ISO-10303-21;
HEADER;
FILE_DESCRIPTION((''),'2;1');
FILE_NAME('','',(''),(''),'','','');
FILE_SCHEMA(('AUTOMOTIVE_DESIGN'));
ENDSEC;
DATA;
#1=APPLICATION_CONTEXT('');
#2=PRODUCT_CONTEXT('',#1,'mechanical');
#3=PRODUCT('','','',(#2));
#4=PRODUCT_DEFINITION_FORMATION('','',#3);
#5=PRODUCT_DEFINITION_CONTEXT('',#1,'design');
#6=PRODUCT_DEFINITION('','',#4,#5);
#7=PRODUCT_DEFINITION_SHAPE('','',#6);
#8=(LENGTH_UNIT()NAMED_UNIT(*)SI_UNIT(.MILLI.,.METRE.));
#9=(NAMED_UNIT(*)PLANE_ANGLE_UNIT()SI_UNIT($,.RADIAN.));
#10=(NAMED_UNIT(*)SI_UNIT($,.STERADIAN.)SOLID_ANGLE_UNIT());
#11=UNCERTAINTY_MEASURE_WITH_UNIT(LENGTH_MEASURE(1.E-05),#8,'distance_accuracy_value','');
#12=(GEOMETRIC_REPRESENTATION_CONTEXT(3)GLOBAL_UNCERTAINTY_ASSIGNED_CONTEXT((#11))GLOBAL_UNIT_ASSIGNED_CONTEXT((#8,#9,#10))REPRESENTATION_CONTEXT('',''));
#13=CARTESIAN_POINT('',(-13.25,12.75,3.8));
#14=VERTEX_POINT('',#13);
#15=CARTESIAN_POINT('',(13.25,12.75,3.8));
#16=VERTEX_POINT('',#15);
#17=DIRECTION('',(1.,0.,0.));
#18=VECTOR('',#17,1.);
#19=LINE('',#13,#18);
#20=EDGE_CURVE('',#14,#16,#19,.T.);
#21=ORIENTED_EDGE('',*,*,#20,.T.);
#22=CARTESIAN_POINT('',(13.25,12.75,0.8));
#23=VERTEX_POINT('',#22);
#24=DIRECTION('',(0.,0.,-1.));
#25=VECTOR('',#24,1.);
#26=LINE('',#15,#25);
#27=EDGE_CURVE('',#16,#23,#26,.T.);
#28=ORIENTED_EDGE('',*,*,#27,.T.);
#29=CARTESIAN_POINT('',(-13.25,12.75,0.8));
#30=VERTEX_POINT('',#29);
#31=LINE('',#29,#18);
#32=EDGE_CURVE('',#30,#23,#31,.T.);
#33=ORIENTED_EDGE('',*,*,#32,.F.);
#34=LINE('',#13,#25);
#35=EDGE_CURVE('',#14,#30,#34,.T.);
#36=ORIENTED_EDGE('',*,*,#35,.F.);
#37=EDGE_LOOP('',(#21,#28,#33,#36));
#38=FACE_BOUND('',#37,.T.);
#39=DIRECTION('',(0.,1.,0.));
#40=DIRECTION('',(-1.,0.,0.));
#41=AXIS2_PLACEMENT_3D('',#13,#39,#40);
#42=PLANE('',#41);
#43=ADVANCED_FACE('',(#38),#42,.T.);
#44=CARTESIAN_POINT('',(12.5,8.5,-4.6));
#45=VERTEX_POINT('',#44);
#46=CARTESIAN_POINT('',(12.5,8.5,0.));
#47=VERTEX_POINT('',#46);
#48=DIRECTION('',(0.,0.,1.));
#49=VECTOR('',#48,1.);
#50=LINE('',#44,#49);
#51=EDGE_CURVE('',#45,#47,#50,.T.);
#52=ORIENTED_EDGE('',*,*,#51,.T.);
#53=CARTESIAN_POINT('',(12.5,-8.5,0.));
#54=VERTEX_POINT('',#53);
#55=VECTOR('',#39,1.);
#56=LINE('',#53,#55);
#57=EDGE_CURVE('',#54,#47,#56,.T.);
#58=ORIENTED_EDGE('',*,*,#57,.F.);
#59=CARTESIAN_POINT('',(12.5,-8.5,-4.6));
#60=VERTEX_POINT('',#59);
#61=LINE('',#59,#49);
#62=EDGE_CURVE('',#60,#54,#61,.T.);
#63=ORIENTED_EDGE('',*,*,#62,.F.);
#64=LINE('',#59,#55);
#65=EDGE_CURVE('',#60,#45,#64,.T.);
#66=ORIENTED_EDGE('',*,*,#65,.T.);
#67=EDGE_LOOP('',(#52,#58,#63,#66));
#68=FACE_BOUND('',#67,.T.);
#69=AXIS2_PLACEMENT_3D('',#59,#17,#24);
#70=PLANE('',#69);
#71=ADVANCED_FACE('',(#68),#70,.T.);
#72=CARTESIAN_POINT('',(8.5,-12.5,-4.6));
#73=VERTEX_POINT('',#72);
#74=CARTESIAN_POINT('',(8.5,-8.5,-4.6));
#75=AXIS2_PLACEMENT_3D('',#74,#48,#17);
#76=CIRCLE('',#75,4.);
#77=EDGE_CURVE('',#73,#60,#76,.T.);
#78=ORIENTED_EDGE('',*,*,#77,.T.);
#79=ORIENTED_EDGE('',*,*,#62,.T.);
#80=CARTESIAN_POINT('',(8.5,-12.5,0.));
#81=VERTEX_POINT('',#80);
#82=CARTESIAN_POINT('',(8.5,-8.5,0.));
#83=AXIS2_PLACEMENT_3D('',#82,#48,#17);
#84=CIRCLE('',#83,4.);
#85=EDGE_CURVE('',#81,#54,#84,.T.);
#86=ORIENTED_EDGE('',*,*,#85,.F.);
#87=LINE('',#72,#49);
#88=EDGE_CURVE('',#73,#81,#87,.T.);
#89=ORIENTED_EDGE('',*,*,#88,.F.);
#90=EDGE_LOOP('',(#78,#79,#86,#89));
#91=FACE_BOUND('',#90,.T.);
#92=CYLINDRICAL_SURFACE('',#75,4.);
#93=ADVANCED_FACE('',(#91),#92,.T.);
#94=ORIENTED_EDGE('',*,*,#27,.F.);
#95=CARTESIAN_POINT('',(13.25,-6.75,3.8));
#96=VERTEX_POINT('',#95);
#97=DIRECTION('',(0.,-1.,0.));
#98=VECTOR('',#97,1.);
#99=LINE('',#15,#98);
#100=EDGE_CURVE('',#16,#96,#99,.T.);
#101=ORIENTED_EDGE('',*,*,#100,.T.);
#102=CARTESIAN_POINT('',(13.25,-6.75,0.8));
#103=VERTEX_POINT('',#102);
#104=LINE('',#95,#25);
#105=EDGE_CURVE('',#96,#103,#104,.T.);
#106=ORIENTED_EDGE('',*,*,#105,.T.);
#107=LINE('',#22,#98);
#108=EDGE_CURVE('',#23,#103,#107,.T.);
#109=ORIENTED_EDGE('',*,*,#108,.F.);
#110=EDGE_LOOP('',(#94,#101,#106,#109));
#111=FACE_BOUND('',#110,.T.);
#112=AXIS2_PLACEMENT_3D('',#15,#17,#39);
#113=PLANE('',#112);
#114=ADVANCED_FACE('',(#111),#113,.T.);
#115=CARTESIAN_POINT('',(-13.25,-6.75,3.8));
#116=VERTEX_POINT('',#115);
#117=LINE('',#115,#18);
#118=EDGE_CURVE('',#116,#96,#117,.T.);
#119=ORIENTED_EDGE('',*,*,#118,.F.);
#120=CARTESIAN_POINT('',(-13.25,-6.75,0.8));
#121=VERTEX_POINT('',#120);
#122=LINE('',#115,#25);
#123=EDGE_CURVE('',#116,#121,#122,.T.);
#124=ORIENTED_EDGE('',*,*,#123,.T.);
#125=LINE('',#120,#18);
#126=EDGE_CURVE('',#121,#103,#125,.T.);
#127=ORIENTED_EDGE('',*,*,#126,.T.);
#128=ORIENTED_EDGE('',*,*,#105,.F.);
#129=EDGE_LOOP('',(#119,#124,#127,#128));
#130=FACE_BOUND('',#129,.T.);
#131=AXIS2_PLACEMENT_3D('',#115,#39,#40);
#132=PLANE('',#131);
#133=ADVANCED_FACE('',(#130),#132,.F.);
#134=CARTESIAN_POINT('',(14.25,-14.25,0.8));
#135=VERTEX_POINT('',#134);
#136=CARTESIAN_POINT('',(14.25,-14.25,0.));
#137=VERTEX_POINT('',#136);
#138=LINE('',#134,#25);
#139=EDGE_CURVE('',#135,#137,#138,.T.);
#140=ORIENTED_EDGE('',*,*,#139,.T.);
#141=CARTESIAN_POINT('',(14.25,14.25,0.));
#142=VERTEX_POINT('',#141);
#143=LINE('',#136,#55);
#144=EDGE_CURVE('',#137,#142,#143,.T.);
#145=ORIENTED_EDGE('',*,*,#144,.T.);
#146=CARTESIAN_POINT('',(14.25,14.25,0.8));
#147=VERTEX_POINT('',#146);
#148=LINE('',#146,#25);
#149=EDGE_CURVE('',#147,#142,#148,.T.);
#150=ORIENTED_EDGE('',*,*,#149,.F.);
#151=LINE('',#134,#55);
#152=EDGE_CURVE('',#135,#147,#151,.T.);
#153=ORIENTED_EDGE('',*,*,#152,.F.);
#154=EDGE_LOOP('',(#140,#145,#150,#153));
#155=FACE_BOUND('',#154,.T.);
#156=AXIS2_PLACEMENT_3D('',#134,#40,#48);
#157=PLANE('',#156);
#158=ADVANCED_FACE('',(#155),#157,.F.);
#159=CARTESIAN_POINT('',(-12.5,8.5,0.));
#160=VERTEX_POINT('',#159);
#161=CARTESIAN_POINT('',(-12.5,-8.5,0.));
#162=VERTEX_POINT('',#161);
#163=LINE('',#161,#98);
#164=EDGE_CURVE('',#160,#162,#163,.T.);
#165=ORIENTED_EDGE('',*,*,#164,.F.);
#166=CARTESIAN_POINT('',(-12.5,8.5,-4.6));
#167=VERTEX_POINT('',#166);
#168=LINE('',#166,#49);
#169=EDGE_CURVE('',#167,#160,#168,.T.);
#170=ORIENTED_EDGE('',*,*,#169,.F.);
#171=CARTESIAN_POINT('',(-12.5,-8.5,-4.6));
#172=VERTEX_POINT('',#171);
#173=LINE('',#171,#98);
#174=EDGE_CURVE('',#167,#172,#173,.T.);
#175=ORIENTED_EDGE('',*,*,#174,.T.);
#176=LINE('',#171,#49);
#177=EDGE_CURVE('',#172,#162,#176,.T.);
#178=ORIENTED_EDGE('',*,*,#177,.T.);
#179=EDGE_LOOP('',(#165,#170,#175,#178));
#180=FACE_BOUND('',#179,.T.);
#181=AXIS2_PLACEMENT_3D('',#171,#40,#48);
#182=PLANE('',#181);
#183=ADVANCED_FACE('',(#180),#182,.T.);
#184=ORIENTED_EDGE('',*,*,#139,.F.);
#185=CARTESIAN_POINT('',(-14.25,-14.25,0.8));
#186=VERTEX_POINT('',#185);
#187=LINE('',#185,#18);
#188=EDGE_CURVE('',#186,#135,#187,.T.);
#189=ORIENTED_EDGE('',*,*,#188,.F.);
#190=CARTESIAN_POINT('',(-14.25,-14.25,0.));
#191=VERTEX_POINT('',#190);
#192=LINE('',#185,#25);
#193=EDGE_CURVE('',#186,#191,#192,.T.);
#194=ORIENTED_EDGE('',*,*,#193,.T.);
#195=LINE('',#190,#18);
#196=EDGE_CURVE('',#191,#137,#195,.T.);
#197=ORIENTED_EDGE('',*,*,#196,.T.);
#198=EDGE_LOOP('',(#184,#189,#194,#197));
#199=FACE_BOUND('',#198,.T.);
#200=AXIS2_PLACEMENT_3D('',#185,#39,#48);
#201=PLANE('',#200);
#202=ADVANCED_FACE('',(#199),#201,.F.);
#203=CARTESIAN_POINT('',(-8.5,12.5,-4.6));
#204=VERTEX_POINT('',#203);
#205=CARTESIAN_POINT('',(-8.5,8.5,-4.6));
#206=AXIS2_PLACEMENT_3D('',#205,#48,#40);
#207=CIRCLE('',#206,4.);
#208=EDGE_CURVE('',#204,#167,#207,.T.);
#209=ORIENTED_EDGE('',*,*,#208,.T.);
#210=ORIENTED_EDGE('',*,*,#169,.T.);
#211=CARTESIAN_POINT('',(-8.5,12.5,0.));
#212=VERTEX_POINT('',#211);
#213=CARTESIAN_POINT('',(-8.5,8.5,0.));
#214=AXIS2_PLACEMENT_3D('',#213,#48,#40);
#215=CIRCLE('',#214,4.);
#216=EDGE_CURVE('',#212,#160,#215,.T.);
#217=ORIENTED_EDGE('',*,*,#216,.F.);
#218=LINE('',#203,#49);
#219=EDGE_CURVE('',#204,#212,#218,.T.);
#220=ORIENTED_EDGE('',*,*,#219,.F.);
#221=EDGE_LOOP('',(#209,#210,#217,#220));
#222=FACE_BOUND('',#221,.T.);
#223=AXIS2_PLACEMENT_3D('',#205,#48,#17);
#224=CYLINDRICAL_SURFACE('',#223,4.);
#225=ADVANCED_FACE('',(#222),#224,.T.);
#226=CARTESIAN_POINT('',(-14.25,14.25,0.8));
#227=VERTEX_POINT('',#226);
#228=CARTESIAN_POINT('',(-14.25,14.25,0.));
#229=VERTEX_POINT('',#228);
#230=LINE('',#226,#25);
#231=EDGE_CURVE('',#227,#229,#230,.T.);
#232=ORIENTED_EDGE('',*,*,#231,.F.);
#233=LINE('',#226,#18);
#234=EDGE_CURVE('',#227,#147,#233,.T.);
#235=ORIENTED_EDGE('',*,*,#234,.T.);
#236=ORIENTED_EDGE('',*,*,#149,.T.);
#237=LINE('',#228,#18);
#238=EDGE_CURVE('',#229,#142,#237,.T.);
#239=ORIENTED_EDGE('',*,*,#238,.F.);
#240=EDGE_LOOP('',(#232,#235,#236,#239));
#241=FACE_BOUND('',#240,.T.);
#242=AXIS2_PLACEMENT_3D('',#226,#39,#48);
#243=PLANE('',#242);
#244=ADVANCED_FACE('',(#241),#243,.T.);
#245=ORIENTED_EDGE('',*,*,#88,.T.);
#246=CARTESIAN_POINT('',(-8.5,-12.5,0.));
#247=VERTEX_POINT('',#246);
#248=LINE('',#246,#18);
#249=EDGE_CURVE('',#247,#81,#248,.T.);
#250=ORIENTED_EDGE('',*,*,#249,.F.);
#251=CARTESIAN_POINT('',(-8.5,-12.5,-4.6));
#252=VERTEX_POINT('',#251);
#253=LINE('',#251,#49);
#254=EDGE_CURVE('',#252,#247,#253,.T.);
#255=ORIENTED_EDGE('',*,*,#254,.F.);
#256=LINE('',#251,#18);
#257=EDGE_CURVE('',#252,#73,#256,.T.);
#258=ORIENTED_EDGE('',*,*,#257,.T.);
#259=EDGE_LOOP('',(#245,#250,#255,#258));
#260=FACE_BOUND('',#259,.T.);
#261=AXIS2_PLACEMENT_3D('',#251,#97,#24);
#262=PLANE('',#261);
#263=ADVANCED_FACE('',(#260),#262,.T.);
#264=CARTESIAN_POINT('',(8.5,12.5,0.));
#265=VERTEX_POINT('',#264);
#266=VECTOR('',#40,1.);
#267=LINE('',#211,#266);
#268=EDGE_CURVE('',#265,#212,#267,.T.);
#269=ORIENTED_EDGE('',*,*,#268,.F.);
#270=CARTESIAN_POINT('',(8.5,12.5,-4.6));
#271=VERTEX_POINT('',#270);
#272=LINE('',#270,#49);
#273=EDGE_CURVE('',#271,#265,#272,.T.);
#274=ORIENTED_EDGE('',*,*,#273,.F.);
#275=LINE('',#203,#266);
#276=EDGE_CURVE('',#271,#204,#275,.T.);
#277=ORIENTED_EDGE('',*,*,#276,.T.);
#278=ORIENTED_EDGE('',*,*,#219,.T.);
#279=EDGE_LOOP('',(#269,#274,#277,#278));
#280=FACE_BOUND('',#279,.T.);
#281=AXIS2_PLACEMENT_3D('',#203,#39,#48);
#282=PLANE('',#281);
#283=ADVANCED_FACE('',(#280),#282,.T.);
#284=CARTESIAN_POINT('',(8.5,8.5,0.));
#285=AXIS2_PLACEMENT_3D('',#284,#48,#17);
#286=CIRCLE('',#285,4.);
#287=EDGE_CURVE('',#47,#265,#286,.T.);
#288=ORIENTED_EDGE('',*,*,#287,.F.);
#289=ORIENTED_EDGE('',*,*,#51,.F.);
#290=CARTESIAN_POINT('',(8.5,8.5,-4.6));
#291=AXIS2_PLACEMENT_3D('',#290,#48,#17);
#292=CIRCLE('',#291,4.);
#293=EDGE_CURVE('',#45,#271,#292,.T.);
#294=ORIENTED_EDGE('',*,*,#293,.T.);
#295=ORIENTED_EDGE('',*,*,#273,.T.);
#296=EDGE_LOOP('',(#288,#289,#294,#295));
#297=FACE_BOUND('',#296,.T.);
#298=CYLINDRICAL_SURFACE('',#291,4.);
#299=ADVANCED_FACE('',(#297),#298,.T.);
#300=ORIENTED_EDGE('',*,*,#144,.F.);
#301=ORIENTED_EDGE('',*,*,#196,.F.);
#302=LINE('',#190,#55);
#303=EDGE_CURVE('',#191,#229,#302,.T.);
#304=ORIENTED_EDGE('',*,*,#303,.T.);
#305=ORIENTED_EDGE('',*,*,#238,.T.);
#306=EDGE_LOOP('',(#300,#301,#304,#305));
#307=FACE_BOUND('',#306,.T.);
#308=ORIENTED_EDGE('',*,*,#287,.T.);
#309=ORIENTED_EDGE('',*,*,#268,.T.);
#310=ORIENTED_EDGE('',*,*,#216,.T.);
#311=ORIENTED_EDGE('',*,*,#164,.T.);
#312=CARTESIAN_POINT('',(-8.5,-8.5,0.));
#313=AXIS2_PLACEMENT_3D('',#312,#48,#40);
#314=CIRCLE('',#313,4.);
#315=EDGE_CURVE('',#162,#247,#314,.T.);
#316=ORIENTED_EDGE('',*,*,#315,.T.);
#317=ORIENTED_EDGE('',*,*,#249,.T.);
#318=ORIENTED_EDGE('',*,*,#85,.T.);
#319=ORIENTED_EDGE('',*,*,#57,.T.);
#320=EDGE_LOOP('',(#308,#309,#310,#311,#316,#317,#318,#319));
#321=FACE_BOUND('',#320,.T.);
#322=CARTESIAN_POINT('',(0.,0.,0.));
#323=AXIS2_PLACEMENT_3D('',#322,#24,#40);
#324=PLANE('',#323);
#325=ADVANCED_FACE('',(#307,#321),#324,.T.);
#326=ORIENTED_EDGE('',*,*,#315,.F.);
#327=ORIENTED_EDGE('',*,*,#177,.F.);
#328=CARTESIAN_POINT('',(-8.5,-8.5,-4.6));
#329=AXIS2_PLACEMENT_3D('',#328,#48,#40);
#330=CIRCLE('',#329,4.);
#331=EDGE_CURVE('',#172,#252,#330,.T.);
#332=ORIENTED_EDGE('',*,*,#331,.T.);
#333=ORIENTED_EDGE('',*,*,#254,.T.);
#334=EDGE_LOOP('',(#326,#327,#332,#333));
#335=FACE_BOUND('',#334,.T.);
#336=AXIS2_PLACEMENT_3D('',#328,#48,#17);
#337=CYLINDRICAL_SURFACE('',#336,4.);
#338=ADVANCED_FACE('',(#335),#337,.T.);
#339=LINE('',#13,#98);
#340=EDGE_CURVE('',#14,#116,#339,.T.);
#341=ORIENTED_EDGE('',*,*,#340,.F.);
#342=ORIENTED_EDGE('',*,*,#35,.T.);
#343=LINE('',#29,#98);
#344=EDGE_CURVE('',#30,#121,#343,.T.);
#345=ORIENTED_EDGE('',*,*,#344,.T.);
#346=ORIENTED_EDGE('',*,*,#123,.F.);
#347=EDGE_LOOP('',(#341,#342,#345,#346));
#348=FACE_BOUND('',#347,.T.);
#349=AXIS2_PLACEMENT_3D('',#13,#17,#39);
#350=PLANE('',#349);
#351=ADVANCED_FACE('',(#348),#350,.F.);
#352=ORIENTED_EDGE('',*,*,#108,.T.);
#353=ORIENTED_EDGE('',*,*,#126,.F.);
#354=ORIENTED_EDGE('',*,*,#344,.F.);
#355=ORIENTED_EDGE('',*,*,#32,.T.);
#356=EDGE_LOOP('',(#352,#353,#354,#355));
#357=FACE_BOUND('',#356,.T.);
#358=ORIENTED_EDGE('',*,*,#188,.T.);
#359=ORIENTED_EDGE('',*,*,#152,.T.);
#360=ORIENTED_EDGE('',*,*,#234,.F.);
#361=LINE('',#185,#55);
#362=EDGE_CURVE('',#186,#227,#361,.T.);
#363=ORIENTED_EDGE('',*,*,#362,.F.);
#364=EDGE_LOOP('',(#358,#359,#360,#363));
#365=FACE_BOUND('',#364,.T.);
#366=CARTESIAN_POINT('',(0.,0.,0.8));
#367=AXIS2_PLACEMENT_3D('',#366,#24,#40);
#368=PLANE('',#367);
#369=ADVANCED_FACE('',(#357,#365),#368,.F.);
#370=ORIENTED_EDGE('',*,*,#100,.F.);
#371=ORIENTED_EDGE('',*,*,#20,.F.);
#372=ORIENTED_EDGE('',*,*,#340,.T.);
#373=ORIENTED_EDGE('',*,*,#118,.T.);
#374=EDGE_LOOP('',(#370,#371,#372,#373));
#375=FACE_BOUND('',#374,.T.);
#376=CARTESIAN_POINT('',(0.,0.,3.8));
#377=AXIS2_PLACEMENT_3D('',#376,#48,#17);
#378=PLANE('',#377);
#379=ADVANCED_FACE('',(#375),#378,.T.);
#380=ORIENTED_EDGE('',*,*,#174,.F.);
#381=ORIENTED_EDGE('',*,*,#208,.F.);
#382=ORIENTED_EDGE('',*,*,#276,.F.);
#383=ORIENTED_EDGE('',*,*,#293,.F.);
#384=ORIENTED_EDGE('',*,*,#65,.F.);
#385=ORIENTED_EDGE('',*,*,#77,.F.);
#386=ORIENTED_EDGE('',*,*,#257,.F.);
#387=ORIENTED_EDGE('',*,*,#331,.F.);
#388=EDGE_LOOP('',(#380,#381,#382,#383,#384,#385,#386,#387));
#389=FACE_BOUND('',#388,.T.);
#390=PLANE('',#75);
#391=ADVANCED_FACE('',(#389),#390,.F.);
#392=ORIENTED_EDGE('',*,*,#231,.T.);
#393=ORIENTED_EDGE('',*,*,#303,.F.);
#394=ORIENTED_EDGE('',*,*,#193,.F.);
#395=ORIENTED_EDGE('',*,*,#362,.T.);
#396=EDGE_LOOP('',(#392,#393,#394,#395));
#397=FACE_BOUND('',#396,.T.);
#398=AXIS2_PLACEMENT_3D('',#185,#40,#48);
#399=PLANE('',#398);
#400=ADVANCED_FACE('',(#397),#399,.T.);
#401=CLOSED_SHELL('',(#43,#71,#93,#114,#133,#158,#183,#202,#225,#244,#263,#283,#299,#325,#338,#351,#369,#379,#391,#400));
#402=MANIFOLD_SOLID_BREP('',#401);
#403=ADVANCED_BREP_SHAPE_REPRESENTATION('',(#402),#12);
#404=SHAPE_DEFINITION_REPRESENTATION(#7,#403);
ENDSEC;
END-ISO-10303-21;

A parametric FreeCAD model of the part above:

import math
import FreeCAD as App
import Part
import Sketcher
from FreeCAD import Vector
Q = App.Units.Quantity


def add_polygon(sketch, points):
    """Adds a closed chain of lines whose ends are joined by coincident constraints."""
    first, n = sketch.GeometryCount, len(points)
    for a, b in zip(points, points[1:] + points[:1]):
        sketch.addGeometry(Part.LineSegment(App.Vector(*a, 0), App.Vector(*b, 0)), False)
    for i in range(n):
        sketch.addConstraint(Sketcher.Constraint("Coincident", first + i, 2, first + (i + 1) % n, 1))

doc = App.newDocument("Part")
params = doc.addObject("Spreadsheet::Sheet", "Params")
for row, (alias, value) in enumerate([
    ("sketch1_width", "28.5 mm"),
    ("pad1_length", "0.8 mm"),
    ("sketch2_width", "26.5 mm"),
    ("sketch2_height", "19.5 mm"),
    ("pad2_length", "3 mm"),
    ("sketch3_radius", "4 mm"),
    ("sketch3_width", "17 mm"),
    ("pad3_length", "4.6 mm"),
], start=1):
    params.set(f"A{row}", alias)
    params.set(f"B{row}", "=" + value)
    params.setAlias(f"B{row}", alias)

body = doc.addObject("PartDesign::Body", "Body")

sketch1 = doc.addObject("Sketcher::SketchObject", "Sketch")
body.addObject(sketch1)
sketch1.AttachmentSupport = (doc.XY_Plane, [""])
sketch1.MapMode = "FlatFace"
add_polygon(sketch1, [(-14, 14), (-14, -14), (14, -14), (14, 14)])
sketch1.addConstraint([
    Sketcher.Constraint("Vertical", 0),
    Sketcher.Constraint("Horizontal", 1),
    Sketcher.Constraint("Vertical", 2),
    Sketcher.Constraint("Horizontal", 3),
    Sketcher.Constraint("Symmetric", 0, 2, 2, 2, -1, 1),
    Sketcher.Constraint("Equal", 3, 0),
    Sketcher.Constraint("DistanceX", 1, 1, 1, 2, Q("28.5 mm")),
])
sketch1.setExpression("Constraints[10]", "Params.sketch1_width")
pad1 = doc.addObject("PartDesign::Pad", "Pad")
body.addObject(pad1)
pad1.Profile = sketch1
pad1.setExpression("Length", "Params.pad1_length")

sketch2 = doc.addObject("Sketcher::SketchObject", "Sketch001")
body.addObject(sketch2)
sketch2.AttachmentSupport = (doc.XY_Plane, [""])
sketch2.MapMode = "FlatFace"
sketch2.AttachmentOffset = App.Placement(Vector(0, 0, 0.8), App.Rotation())
add_polygon(sketch2, [(-13, 13), (-13, -7), (13, -7), (13, 13)])
sketch2.addConstraint([
    Sketcher.Constraint("Vertical", 0),
    Sketcher.Constraint("Horizontal", 1),
    Sketcher.Constraint("Vertical", 2),
    Sketcher.Constraint("Horizontal", 3),
    Sketcher.Constraint("DistanceX", 1, 1, 1, 2, Q("26.5 mm")),
    Sketcher.Constraint("DistanceY", 0, 2, 0, 1, Q("19.5 mm")),
    Sketcher.Constraint("DistanceX", 0, 2, -1, 1, Q("13.25 mm")),
    Sketcher.Constraint("DistanceY", 0, 2, -1, 1, Q("6.75 mm")),
])
sketch2.setExpression("Constraints[8]", "Params.sketch2_width")
sketch2.setExpression("Constraints[9]", "Params.sketch2_height")
pad2 = doc.addObject("PartDesign::Pad", "Pad001")
body.addObject(pad2)
pad2.Profile = sketch2
pad2.setExpression("Length", "Params.pad2_length")

sketch3 = doc.addObject("Sketcher::SketchObject", "Sketch002")
body.addObject(sketch3)
sketch3.AttachmentSupport = (doc.XY_Plane, [""])
sketch3.MapMode = "FlatFace"
sketch3.addGeometry([
    Part.LineSegment(Vector(-8.5, -12.5, 0), Vector(8.5, -12.5, 0)),
    Part.ArcOfCircle(Part.Circle(Vector(8.5, -8.5, 0), Vector(0, 0, 1), 4), math.radians(-90), math.radians(0)),
    Part.LineSegment(Vector(12.5, -8.5, 0), Vector(12.5, 8.5, 0)),
    Part.ArcOfCircle(Part.Circle(Vector(8.5, 8.5, 0), Vector(0, 0, 1), 4), math.radians(0), math.radians(90)),
    Part.LineSegment(Vector(8.5, 12.5, 0), Vector(-8.5, 12.5, 0)),
    Part.ArcOfCircle(Part.Circle(Vector(-8.5, 8.5, 0), Vector(0, 0, 1), 4), math.radians(90), math.radians(180)),
    Part.LineSegment(Vector(-12.5, 8.5, 0), Vector(-12.5, -8.5, 0)),
    Part.ArcOfCircle(Part.Circle(Vector(-8.5, -8.5, 0), Vector(0, 0, 1), 4), math.radians(180), math.radians(270)),
], False)
sketch3.addConstraint([
    Sketcher.Constraint("Tangent", 0, 2, 1, 1),
    Sketcher.Constraint("Tangent", 1, 2, 2, 1),
    Sketcher.Constraint("Tangent", 2, 2, 3, 1),
    Sketcher.Constraint("Tangent", 3, 2, 4, 1),
    Sketcher.Constraint("Tangent", 4, 2, 5, 1),
    Sketcher.Constraint("Tangent", 5, 2, 6, 1),
    Sketcher.Constraint("Tangent", 6, 2, 7, 1),
    Sketcher.Constraint("Tangent", 7, 2, 0, 1),
    Sketcher.Constraint("Horizontal", 0),
    Sketcher.Constraint("Vertical", 2),
    Sketcher.Constraint("Horizontal", 4),
    Sketcher.Constraint("Vertical", 6),
    Sketcher.Constraint("Equal", 1, 3),
    Sketcher.Constraint("Equal", 3, 5),
    Sketcher.Constraint("Equal", 5, 7),
    Sketcher.Constraint("Symmetric", 1, 3, 5, 3, -1, 1),
    Sketcher.Constraint("Equal", 4, 2),
    Sketcher.Constraint("Radius", 1, Q("4 mm")),
    Sketcher.Constraint("DistanceX", 0, 1, 0, 2, Q("17 mm")),
])
sketch3.setExpression("Constraints[17]", "Params.sketch3_radius")
sketch3.setExpression("Constraints[18]", "Params.sketch3_width")
pad3 = doc.addObject("PartDesign::Pad", "Pad002")
body.addObject(pad3)
pad3.Profile = sketch3
pad3.setExpression("Length", "Params.pad3_length")
pad3.Reversed = True

doc.recompute()
